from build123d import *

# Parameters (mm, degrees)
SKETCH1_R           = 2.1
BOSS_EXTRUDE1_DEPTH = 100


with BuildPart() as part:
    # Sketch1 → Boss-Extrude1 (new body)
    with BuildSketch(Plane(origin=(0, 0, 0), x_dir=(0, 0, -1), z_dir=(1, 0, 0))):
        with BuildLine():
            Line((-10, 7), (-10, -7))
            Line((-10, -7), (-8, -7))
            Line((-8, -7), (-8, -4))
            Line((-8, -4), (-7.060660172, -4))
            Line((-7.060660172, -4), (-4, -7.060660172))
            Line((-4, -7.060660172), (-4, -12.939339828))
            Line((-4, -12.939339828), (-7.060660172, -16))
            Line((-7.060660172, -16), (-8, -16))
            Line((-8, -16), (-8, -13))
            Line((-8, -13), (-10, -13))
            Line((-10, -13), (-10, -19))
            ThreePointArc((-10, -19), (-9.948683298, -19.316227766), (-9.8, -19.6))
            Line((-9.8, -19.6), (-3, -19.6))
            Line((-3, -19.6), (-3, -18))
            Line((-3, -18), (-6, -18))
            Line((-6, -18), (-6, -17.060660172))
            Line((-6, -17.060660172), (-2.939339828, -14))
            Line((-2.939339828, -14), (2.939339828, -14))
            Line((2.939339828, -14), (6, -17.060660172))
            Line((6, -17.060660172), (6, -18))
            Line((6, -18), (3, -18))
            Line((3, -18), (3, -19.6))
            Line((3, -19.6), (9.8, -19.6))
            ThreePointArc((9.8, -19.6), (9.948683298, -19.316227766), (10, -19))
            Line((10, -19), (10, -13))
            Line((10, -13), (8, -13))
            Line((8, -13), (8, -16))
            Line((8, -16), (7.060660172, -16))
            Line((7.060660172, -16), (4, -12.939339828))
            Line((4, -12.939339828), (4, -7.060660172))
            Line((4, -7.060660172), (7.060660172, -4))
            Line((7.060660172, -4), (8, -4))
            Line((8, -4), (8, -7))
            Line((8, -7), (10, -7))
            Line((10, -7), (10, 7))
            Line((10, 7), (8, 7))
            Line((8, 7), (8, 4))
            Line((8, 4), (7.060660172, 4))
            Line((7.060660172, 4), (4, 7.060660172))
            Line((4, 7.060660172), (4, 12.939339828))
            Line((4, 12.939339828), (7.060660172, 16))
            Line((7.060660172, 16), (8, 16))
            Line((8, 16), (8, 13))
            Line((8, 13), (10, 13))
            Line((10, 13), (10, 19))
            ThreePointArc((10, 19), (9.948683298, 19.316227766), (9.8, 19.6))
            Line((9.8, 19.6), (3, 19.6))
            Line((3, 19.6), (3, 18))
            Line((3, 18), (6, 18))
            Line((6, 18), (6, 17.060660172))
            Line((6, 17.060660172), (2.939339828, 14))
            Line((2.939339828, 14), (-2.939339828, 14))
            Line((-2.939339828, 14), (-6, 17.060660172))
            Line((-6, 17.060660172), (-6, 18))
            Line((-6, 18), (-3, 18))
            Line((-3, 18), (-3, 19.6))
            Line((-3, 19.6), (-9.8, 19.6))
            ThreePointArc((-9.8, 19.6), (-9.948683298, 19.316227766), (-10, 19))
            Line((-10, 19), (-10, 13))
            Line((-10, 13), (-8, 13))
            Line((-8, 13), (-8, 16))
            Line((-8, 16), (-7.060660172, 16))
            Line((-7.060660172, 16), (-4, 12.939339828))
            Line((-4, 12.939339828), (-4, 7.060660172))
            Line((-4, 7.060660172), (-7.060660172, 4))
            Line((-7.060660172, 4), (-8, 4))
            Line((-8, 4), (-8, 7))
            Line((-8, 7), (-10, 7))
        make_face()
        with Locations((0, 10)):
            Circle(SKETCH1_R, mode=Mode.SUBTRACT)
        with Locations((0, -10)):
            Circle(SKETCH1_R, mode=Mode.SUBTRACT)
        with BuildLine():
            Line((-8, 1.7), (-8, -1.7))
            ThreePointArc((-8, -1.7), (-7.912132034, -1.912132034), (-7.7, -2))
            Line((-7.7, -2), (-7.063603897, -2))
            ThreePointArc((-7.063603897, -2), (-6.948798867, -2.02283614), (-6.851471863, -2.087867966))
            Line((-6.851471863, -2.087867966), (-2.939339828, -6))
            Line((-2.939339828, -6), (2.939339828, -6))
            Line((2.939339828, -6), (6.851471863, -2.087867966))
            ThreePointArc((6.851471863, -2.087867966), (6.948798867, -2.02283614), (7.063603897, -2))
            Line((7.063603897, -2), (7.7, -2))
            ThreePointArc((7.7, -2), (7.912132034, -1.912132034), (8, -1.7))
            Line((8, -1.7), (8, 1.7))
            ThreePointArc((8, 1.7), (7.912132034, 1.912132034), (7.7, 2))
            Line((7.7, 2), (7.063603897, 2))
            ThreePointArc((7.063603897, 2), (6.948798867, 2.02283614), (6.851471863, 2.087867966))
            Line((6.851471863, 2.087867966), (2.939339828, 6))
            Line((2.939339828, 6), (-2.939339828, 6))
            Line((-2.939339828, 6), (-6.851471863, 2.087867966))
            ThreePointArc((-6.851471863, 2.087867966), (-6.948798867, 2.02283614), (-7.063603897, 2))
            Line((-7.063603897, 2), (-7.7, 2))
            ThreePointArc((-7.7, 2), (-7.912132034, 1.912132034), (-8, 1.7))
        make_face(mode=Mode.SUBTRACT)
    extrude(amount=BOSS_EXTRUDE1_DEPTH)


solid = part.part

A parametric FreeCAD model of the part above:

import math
import FreeCAD as App
import Part
import Sketcher
from FreeCAD import Vector

doc = App.newDocument("Part")
body = doc.addObject("PartDesign::Body", "Body")

sketch1 = doc.addObject("Sketcher::SketchObject", "Sketch")
body.addObject(sketch1)
sketch1.AttachmentSupport = (doc.YZ_Plane, [""])
sketch1.MapMode = "FlatFace"
sketch1.addGeometry([
    Part.LineSegment(Vector(7, 10, 0), Vector(-7, 10, 0)),
    Part.LineSegment(Vector(-7, 10, 0), Vector(-7, 8, 0)),
    Part.LineSegment(Vector(-7, 8, 0), Vector(-4, 8, 0)),
    Part.LineSegment(Vector(-4, 8, 0), Vector(-4, 7.06, 0)),
    Part.LineSegment(Vector(-4, 7.06, 0), Vector(-7.06, 4, 0)),
    Part.LineSegment(Vector(-7.06, 4, 0), Vector(-12.94, 4, 0)),
    Part.LineSegment(Vector(-12.94, 4, 0), Vector(-16, 7.06, 0)),
    Part.LineSegment(Vector(-16, 7.06, 0), Vector(-16, 8, 0)),
    Part.LineSegment(Vector(-16, 8, 0), Vector(-13, 8, 0)),
    Part.LineSegment(Vector(-13, 8, 0), Vector(-13, 10, 0)),
    Part.LineSegment(Vector(-13, 10, 0), Vector(-19, 10, 0)),
    Part.ArcOfCircle(Part.Circle(Vector(-19, 9, 0), Vector(0, 0, 1), 1), math.radians(90), math.radians(127)),
    Part.LineSegment(Vector(-19.6, 9.8, 0), Vector(-19.6, 3, 0)),
    Part.LineSegment(Vector(-19.6, 3, 0), Vector(-18, 3, 0)),
    Part.LineSegment(Vector(-18, 3, 0), Vector(-18, 6, 0)),
    Part.LineSegment(Vector(-18, 6, 0), Vector(-17.06, 6, 0)),
    Part.LineSegment(Vector(-17.06, 6, 0), Vector(-14, 2.94, 0)),
    Part.LineSegment(Vector(-14, 2.94, 0), Vector(-14, -2.94, 0)),
    Part.LineSegment(Vector(-14, -2.94, 0), Vector(-17.06, -6, 0)),
    Part.LineSegment(Vector(-17.06, -6, 0), Vector(-18, -6, 0)),
    Part.LineSegment(Vector(-18, -6, 0), Vector(-18, -3, 0)),
    Part.LineSegment(Vector(-18, -3, 0), Vector(-19.6, -3, 0)),
    Part.LineSegment(Vector(-19.6, -3, 0), Vector(-19.6, -9.8, 0)),
    Part.ArcOfCircle(Part.Circle(Vector(-19, -9, 0), Vector(0, 0, 1), 1), math.radians(-127), math.radians(-90)),
    Part.LineSegment(Vector(-19, -10, 0), Vector(-13, -10, 0)),
    Part.LineSegment(Vector(-13, -10, 0), Vector(-13, -8, 0)),
    Part.LineSegment(Vector(-13, -8, 0), Vector(-16, -8, 0)),
    Part.LineSegment(Vector(-16, -8, 0), Vector(-16, -7.06, 0)),
    Part.LineSegment(Vector(-16, -7.06, 0), Vector(-12.94, -4, 0)),
    Part.LineSegment(Vector(-12.94, -4, 0), Vector(-7.06, -4, 0)),
    Part.LineSegment(Vector(-7.06, -4, 0), Vector(-4, -7.06, 0)),
    Part.LineSegment(Vector(-4, -7.06, 0), Vector(-4, -8, 0)),
    Part.LineSegment(Vector(-4, -8, 0), Vector(-7, -8, 0)),
    Part.LineSegment(Vector(-7, -8, 0), Vector(-7, -10, 0)),
    Part.LineSegment(Vector(-7, -10, 0), Vector(7, -10, 0)),
    Part.LineSegment(Vector(7, -10, 0), Vector(7, -8, 0)),
    Part.LineSegment(Vector(7, -8, 0), Vector(4, -8, 0)),
    Part.LineSegment(Vector(4, -8, 0), Vector(4, -7.06, 0)),
    Part.LineSegment(Vector(4, -7.06, 0), Vector(7.06, -4, 0)),
    Part.LineSegment(Vector(7.06, -4, 0), Vector(12.94, -4, 0)),
    Part.LineSegment(Vector(12.94, -4, 0), Vector(16, -7.06, 0)),
    Part.LineSegment(Vector(16, -7.06, 0), Vector(16, -8, 0)),
    Part.LineSegment(Vector(16, -8, 0), Vector(13, -8, 0)),
    Part.LineSegment(Vector(13, -8, 0), Vector(13, -10, 0)),
    Part.LineSegment(Vector(13, -10, 0), Vector(19, -10, 0)),
    Part.ArcOfCircle(Part.Circle(Vector(19, -9, 0), Vector(0, 0, 1), 1), math.radians(-90), math.radians(-53)),
    Part.LineSegment(Vector(19.6, -9.8, 0), Vector(19.6, -3, 0)),
    Part.LineSegment(Vector(19.6, -3, 0), Vector(18, -3, 0)),
    Part.LineSegment(Vector(18, -3, 0), Vector(18, -6, 0)),
    Part.LineSegment(Vector(18, -6, 0), Vector(17.06, -6, 0)),
    Part.LineSegment(Vector(17.06, -6, 0), Vector(14, -2.94, 0)),
    Part.LineSegment(Vector(14, -2.94, 0), Vector(14, 2.94, 0)),
    Part.LineSegment(Vector(14, 2.94, 0), Vector(17.06, 6, 0)),
    Part.LineSegment(Vector(17.06, 6, 0), Vector(18, 6, 0)),
    Part.LineSegment(Vector(18, 6, 0), Vector(18, 3, 0)),
    Part.LineSegment(Vector(18, 3, 0), Vector(19.6, 3, 0)),
    Part.LineSegment(Vector(19.6, 3, 0), Vector(19.6, 9.8, 0)),
    Part.ArcOfCircle(Part.Circle(Vector(19, 9, 0), Vector(0, 0, 1), 1), math.radians(53), math.radians(90)),
    Part.LineSegment(Vector(19, 10, 0), Vector(13, 10, 0)),
    Part.LineSegment(Vector(13, 10, 0), Vector(13, 8, 0)),
    Part.LineSegment(Vector(13, 8, 0), Vector(16, 8, 0)),
    Part.LineSegment(Vector(16, 8, 0), Vector(16, 7.06, 0)),
    Part.LineSegment(Vector(16, 7.06, 0), Vector(12.94, 4, 0)),
    Part.LineSegment(Vector(12.94, 4, 0), Vector(7.06, 4, 0)),
    Part.LineSegment(Vector(7.06, 4, 0), Vector(4, 7.06, 0)),
    Part.LineSegment(Vector(4, 7.06, 0), Vector(4, 8, 0)),
    Part.LineSegment(Vector(4, 8, 0), Vector(7, 8, 0)),
    Part.LineSegment(Vector(7, 8, 0), Vector(7, 10, 0)),
    Part.Circle(Vector(-10, 0, 0), Vector(0, 0, 1), 2.1),
    Part.LineSegment(Vector(-1.7, 8, 0), Vector(1.7, 8, 0)),
    Part.ArcOfCircle(Part.Circle(Vector(1.7, 7.7, 0), Vector(0, 0, 1), 0.3), math.radians(0), math.radians(90)),
    Part.LineSegment(Vector(2, 7.7, 0), Vector(2, 7.06, 0)),
    Part.ArcOfCircle(Part.Circle(Vector(2.3, 7.06, 0), Vector(0, 0, 1), 0.3), math.radians(180), math.radians(225)),
    Part.LineSegment(Vector(2.09, 6.85, 0), Vector(6, 2.94, 0)),
    Part.LineSegment(Vector(6, 2.94, 0), Vector(6, -2.94, 0)),
    Part.LineSegment(Vector(6, -2.94, 0), Vector(2.09, -6.85, 0)),
    Part.ArcOfCircle(Part.Circle(Vector(2.3, -7.06, 0), Vector(0, 0, 1), 0.3), math.radians(135), math.radians(180)),
    Part.LineSegment(Vector(2, -7.06, 0), Vector(2, -7.7, 0)),
    Part.ArcOfCircle(Part.Circle(Vector(1.7, -7.7, 0), Vector(0, 0, 1), 0.3), math.radians(-90), math.radians(0)),
    Part.LineSegment(Vector(1.7, -8, 0), Vector(-1.7, -8, 0)),
    Part.ArcOfCircle(Part.Circle(Vector(-1.7, -7.7, 0), Vector(0, 0, 1), 0.3), math.radians(-180), math.radians(-90)),
    Part.LineSegment(Vector(-2, -7.7, 0), Vector(-2, -7.06, 0)),
    Part.ArcOfCircle(Part.Circle(Vector(-2.3, -7.06, 0), Vector(0, 0, 1), 0.3), math.radians(0), math.radians(45)),
    Part.LineSegment(Vector(-2.09, -6.85, 0), Vector(-6, -2.94, 0)),
    Part.LineSegment(Vector(-6, -2.94, 0), Vector(-6, 2.94, 0)),
    Part.LineSegment(Vector(-6, 2.94, 0), Vector(-2.09, 6.85, 0)),
    Part.ArcOfCircle(Part.Circle(Vector(-2.3, 7.06, 0), Vector(0, 0, 1), 0.3), math.radians(-45), math.radians(0)),
    Part.LineSegment(Vector(-2, 7.06, 0), Vector(-2, 7.7, 0)),
    Part.ArcOfCircle(Part.Circle(Vector(-1.7, 7.7, 0), Vector(0, 0, 1), 0.3), math.radians(90), math.radians(180)),
    Part.Circle(Vector(10, 0, 0), Vector(0, 0, 1), 2.1),
], False)
sketch1.addConstraint([
    Sketcher.Constraint("Coincident", 0, 2, 1, 1),
    Sketcher.Constraint("Coincident", 1, 2, 2, 1),
    Sketcher.Constraint("Coincident", 2, 2, 3, 1),
    Sketcher.Constraint("Coincident", 3, 2, 4, 1),
    Sketcher.Constraint("Coincident", 4, 2, 5, 1),
    Sketcher.Constraint("Coincident", 5, 2, 6, 1),
    Sketcher.Constraint("Coincident", 6, 2, 7, 1),
    Sketcher.Constraint("Coincident", 7, 2, 8, 1),
    Sketcher.Constraint("Coincident", 8, 2, 9, 1),
    Sketcher.Constraint("Coincident", 9, 2, 10, 1),
    Sketcher.Constraint("Tangent", 10, 2, 11, 1),
    Sketcher.Constraint("Coincident", 11, 2, 12, 1),
    Sketcher.Constraint("Coincident", 12, 2, 13, 1),
    Sketcher.Constraint("Coincident", 13, 2, 14, 1),
    Sketcher.Constraint("Coincident", 14, 2, 15, 1),
    Sketcher.Constraint("Coincident", 15, 2, 16, 1),
    Sketcher.Constraint("Coincident", 16, 2, 17, 1),
    Sketcher.Constraint("Coincident", 17, 2, 18, 1),
    Sketcher.Constraint("Coincident", 18, 2, 19, 1),
    Sketcher.Constraint("Coincident", 19, 2, 20, 1),
    Sketcher.Constraint("Coincident", 20, 2, 21, 1),
    Sketcher.Constraint("Coincident", 21, 2, 22, 1),
    Sketcher.Constraint("Coincident", 22, 2, 23, 1),
    Sketcher.Constraint("Tangent", 23, 2, 24, 1),
    Sketcher.Constraint("Coincident", 24, 2, 25, 1),
    Sketcher.Constraint("Coincident", 25, 2, 26, 1),
    Sketcher.Constraint("Coincident", 26, 2, 27, 1),
    Sketcher.Constraint("Coincident", 27, 2, 28, 1),
    Sketcher.Constraint("Coincident", 28, 2, 29, 1),
    Sketcher.Constraint("Coincident", 29, 2, 30, 1),
    Sketcher.Constraint("Coincident", 30, 2, 31, 1),
    Sketcher.Constraint("Coincident", 31, 2, 32, 1),
    Sketcher.Constraint("Coincident", 32, 2, 33, 1),
    Sketcher.Constraint("Coincident", 33, 2, 34, 1),
    Sketcher.Constraint("Coincident", 34, 2, 35, 1),
    Sketcher.Constraint("Coincident", 35, 2, 36, 1),
    Sketcher.Constraint("Coincident", 36, 2, 37, 1),
    Sketcher.Constraint("Coincident", 37, 2, 38, 1),
    Sketcher.Constraint("Coincident", 38, 2, 39, 1),
    Sketcher.Constraint("Coincident", 39, 2, 40, 1),
    Sketcher.Constraint("Coincident", 40, 2, 41, 1),
    Sketcher.Constraint("Coincident", 41, 2, 42, 1),
    Sketcher.Constraint("Coincident", 42, 2, 43, 1),
    Sketcher.Constraint("Coincident", 43, 2, 44, 1),
    Sketcher.Constraint("Tangent", 44, 2, 45, 1),
    Sketcher.Constraint("Coincident", 45, 2, 46, 1),
    Sketcher.Constraint("Coincident", 46, 2, 47, 1),
    Sketcher.Constraint("Coincident", 47, 2, 48, 1),
    Sketcher.Constraint("Coincident", 48, 2, 49, 1),
    Sketcher.Constraint("Coincident", 49, 2, 50, 1),
    Sketcher.Constraint("Coincident", 50, 2, 51, 1),
    Sketcher.Constraint("Coincident", 51, 2, 52, 1),
    Sketcher.Constraint("Coincident", 52, 2, 53, 1),
    Sketcher.Constraint("Coincident", 53, 2, 54, 1),
    Sketcher.Constraint("Coincident", 54, 2, 55, 1),
    Sketcher.Constraint("Coincident", 55, 2, 56, 1),
    Sketcher.Constraint("Coincident", 56, 2, 57, 1),
    Sketcher.Constraint("Tangent", 57, 2, 58, 1),
    Sketcher.Constraint("Coincident", 58, 2, 59, 1),
    Sketcher.Constraint("Coincident", 59, 2, 60, 1),
    Sketcher.Constraint("Coincident", 60, 2, 61, 1),
    Sketcher.Constraint("Coincident", 61, 2, 62, 1),
    Sketcher.Constraint("Coincident", 62, 2, 63, 1),
    Sketcher.Constraint("Coincident", 63, 2, 64, 1),
    Sketcher.Constraint("Coincident", 64, 2, 65, 1),
    Sketcher.Constraint("Coincident", 65, 2, 66, 1),
    Sketcher.Constraint("Coincident", 66, 2, 67, 1),
    Sketcher.Constraint("Coincident", 67, 2, 0, 1),
    Sketcher.Constraint("Tangent", 69, 2, 70, 2),
    Sketcher.Constraint("Tangent", 70, 1, 71, 1),
    Sketcher.Constraint("Tangent", 71, 2, 72, 1),
    Sketcher.Constraint("Tangent", 72, 2, 73, 1),
    Sketcher.Constraint("Coincident", 73, 2, 74, 1),
    Sketcher.Constraint("Coincident", 74, 2, 75, 1),
    Sketcher.Constraint("Tangent", 75, 2, 76, 1),
    Sketcher.Constraint("Tangent", 76, 2, 77, 1),
    Sketcher.Constraint("Tangent", 77, 2, 78, 2),
    Sketcher.Constraint("Tangent", 78, 1, 79, 1),
    Sketcher.Constraint("Tangent", 79, 2, 80, 2),
    Sketcher.Constraint("Tangent", 80, 1, 81, 1),
    Sketcher.Constraint("Tangent", 81, 2, 82, 1),
    Sketcher.Constraint("Tangent", 82, 2, 83, 1),
    Sketcher.Constraint("Coincident", 83, 2, 84, 1),
    Sketcher.Constraint("Coincident", 84, 2, 85, 1),
    Sketcher.Constraint("Tangent", 85, 2, 86, 1),
    Sketcher.Constraint("Tangent", 86, 2, 87, 1),
    Sketcher.Constraint("Tangent", 87, 2, 88, 2),
    Sketcher.Constraint("Tangent", 88, 1, 69, 1),
    Sketcher.Constraint("Horizontal", 0),
    Sketcher.Constraint("Vertical", 1),
    Sketcher.Constraint("Horizontal", 2),
    Sketcher.Constraint("Vertical", 3),
    Sketcher.Constraint("Horizontal", 5),
    Sketcher.Constraint("Vertical", 7),
    Sketcher.Constraint("Horizontal", 8),
    Sketcher.Constraint("Vertical", 9),
    Sketcher.Constraint("Horizontal", 10),
    Sketcher.Constraint("Vertical", 12),
    Sketcher.Constraint("Horizontal", 13),
    Sketcher.Constraint("Vertical", 14),
    Sketcher.Constraint("Horizontal", 15),
    Sketcher.Constraint("Vertical", 17),
    Sketcher.Constraint("Horizontal", 19),
    Sketcher.Constraint("Vertical", 20),
    Sketcher.Constraint("Horizontal", 21),
    Sketcher.Constraint("Vertical", 22),
    Sketcher.Constraint("Horizontal", 24),
    Sketcher.Constraint("Vertical", 25),
    Sketcher.Constraint("Horizontal", 26),
    Sketcher.Constraint("Vertical", 27),
    Sketcher.Constraint("Horizontal", 29),
    Sketcher.Constraint("Vertical", 31),
    Sketcher.Constraint("Horizontal", 32),
    Sketcher.Constraint("Vertical", 33),
    Sketcher.Constraint("Horizontal", 34),
    Sketcher.Constraint("Vertical", 35),
    Sketcher.Constraint("Horizontal", 36),
    Sketcher.Constraint("Vertical", 37),
    Sketcher.Constraint("Horizontal", 39),
    Sketcher.Constraint("Vertical", 41),
    Sketcher.Constraint("Horizontal", 42),
    Sketcher.Constraint("Vertical", 43),
    Sketcher.Constraint("Horizontal", 44),
    Sketcher.Constraint("Vertical", 46),
    Sketcher.Constraint("Horizontal", 47),
    Sketcher.Constraint("Vertical", 48),
    Sketcher.Constraint("Horizontal", 49),
    Sketcher.Constraint("Vertical", 51),
    Sketcher.Constraint("Horizontal", 53),
    Sketcher.Constraint("Vertical", 54),
    Sketcher.Constraint("Horizontal", 55),
    Sketcher.Constraint("Vertical", 56),
    Sketcher.Constraint("Horizontal", 58),
    Sketcher.Constraint("Vertical", 59),
    Sketcher.Constraint("Horizontal", 60),
    Sketcher.Constraint("Vertical", 61),
    Sketcher.Constraint("Horizontal", 63),
    Sketcher.Constraint("Vertical", 65),
    Sketcher.Constraint("Horizontal", 66),
    Sketcher.Constraint("Vertical", 67),
    Sketcher.Constraint("Horizontal", 69),
    Sketcher.Constraint("Vertical", 71),
    Sketcher.Constraint("Vertical", 74),
    Sketcher.Constraint("Vertical", 77),
    Sketcher.Constraint("Horizontal", 79),
    Sketcher.Constraint("Vertical", 81),
    Sketcher.Constraint("Vertical", 84),
    Sketcher.Constraint("Vertical", 87),
    Sketcher.Constraint("Equal", 11, 23),
    Sketcher.Constraint("Equal", 23, 45),
    Sketcher.Constraint("Equal", 45, 57),
    Sketcher.Constraint("Equal", 70, 72),
    Sketcher.Constraint("Equal", 72, 76),
    Sketcher.Constraint("Equal", 76, 78),
    Sketcher.Constraint("Equal", 78, 80),
    Sketcher.Constraint("Equal", 80, 82),
    Sketcher.Constraint("Equal", 82, 86),
    Sketcher.Constraint("Equal", 86, 88),
    Sketcher.Constraint("Equal", 68, 89),
    Sketcher.Constraint("Symmetric", 11, 3, 45, 3, -1, 1),
    Sketcher.Constraint("Symmetric", 23, 3, 57, 3, -1, 1),
    Sketcher.Constraint("Symmetric", 70, 3, 80, 3, -1, 1),
    Sketcher.Constraint("Symmetric", 76, 3, 86, 3, -1, 1),
    Sketcher.Constraint("Symmetric", 68, 3, 89, 3, -1, 1),
    Sketcher.Constraint("Symmetric", 0, 2, 34, 2, -1, 1),
    Sketcher.Constraint("Symmetric", 2, 2, 36, 2, -1, 1),
    Sketcher.Constraint("Symmetric", 4, 2, 38, 2, -1, 1),
    Sketcher.Constraint("Symmetric", 6, 2, 40, 2, -1, 1),
    Sketcher.Constraint("Symmetric", 8, 2, 42, 2, -1, 1),
    Sketcher.Constraint("Symmetric", 12, 2, 46, 2, -1, 1),
    Sketcher.Constraint("Symmetric", 14, 2, 48, 2, -1, 1),
    Sketcher.Constraint("Symmetric", 16, 2, 50, 2, -1, 1),
    Sketcher.Constraint("Symmetric", 18, 2, 52, 2, -1, 1),
    Sketcher.Constraint("Symmetric", 20, 2, 54, 2, -1, 1),
    Sketcher.Constraint("Symmetric", 25, 2, 59, 2, -1, 1),
    Sketcher.Constraint("Symmetric", 27, 2, 61, 2, -1, 1),
    Sketcher.Constraint("Symmetric", 28, 2, 62, 2, -1, 1),
    Sketcher.Constraint("Symmetric", 30, 2, 64, 2, -1, 1),
    Sketcher.Constraint("Symmetric", 32, 2, 66, 2, -1, 1),
    Sketcher.Constraint("Symmetric", 72, 2, 82, 2, -1, 1),
    Sketcher.Constraint("Symmetric", 74, 2, 84, 2, -1, 1),
    Sketcher.Constraint("Symmetric", 23, 3, 45, 3, -2),
    Sketcher.Constraint("Symmetric", 76, 3, 82, 3, -2),
    Sketcher.Constraint("Symmetric", 32, 2, 35, 2, -2),
    Sketcher.Constraint("Symmetric", 30, 2, 37, 2, -2),
    Sketcher.Constraint("Symmetric", 29, 2, 38, 2, -2),
    Sketcher.Constraint("Symmetric", 27, 2, 40, 2, -2),
    Sketcher.Constraint("Symmetric", 25, 2, 42, 2, -2),
    Sketcher.Constraint("Symmetric", 21, 2, 46, 2, -2),
    Sketcher.Constraint("Symmetric", 19, 2, 48, 2, -2),
    Sketcher.Constraint("PointOnObject", 68, 3, -1),
    Sketcher.Constraint("Perpendicular", 4, 6),
    Sketcher.Constraint("Parallel", 6, 16),
    Sketcher.Constraint("Perpendicular", 16, 18),
    Sketcher.Constraint("Parallel", 18, 28),
    Sketcher.Constraint("Perpendicular", 28, 30),
    Sketcher.Constraint("Perpendicular", 30, 38),
    Sketcher.Constraint("Perpendicular", 38, 40),
    Sketcher.Constraint("Parallel", 40, 50),
    Sketcher.Constraint("Perpendicular", 50, 52),
    Sketcher.Constraint("Perpendicular", 62, 64),
    Sketcher.Constraint("Parallel", 64, 73),
    Sketcher.Constraint("Perpendicular", 73, 75),
    Sketcher.Constraint("Horizontal", 3, 2, 6, 2),
    Sketcher.Constraint("Horizontal", 2, 2, 7, 2),
    Sketcher.Constraint("Horizontal", 0, 2, 9, 2),
    Sketcher.Constraint("Horizontal", 17, 2, 50, 2),
    Sketcher.Constraint("Horizontal", 11, 2, 56, 2),
    Sketcher.Constraint("Horizontal", 66, 2, 69, 2),
    Sketcher.Constraint("Horizontal", 51, 2, 73, 2),
    Sketcher.Constraint("Equal", 2, 8),
    Sketcher.Constraint("Equal", 53, 3),
    Sketcher.Constraint("Equal", 66, 14),
    Sketcher.Constraint("Equal", 63, 17),
    Sketcher.Constraint("Equal", 6, 16),
    Sketcher.Constraint("Radius", 11, 1.0),
    Sketcher.Constraint("Diameter", 68, 4.2),
    Sketcher.Constraint("Radius", 70, 0.3),
    Sketcher.Constraint("DistanceX", 0, 2, 0, 1, 14.0),
    Sketcher.Constraint("DistanceX", 2, 1, 2, 2, 3.0),
    Sketcher.Constraint("DistanceX", 10, 2, 10, 1, 6.0),
    Sketcher.Constraint("DistanceY", 1, 2, 1, 1, 2.0),
    Sketcher.Constraint("DistanceX", 13, 1, 13, 2, 1.6),
    Sketcher.Constraint("DistanceX", 69, 1, 69, 2, 3.4),
    Sketcher.Constraint("DistanceY", 12, 2, 12, 1, 6.8),
    Sketcher.Constraint("DistanceX", 11, 3, -1, 1, 19.0),
    Sketcher.Constraint("DistanceY", -1, 1, 11, 3, 9.0),
    Sketcher.Constraint("DistanceX", 68, 3, -1, 1, 10.0),
    Sketcher.Constraint("DistanceY", -1, 1, 4, 2, 4.0),
    Sketcher.Constraint("DistanceX", -1, 1, 73, 2, 6.0),
    Sketcher.Constraint("DistanceX", 5, 2, 5, 1, 5.87868),
])
pad1 = doc.addObject("PartDesign::Pad", "Pad")
body.addObject(pad1)
pad1.Profile = sketch1
pad1.Length = 100

doc.recompute()
